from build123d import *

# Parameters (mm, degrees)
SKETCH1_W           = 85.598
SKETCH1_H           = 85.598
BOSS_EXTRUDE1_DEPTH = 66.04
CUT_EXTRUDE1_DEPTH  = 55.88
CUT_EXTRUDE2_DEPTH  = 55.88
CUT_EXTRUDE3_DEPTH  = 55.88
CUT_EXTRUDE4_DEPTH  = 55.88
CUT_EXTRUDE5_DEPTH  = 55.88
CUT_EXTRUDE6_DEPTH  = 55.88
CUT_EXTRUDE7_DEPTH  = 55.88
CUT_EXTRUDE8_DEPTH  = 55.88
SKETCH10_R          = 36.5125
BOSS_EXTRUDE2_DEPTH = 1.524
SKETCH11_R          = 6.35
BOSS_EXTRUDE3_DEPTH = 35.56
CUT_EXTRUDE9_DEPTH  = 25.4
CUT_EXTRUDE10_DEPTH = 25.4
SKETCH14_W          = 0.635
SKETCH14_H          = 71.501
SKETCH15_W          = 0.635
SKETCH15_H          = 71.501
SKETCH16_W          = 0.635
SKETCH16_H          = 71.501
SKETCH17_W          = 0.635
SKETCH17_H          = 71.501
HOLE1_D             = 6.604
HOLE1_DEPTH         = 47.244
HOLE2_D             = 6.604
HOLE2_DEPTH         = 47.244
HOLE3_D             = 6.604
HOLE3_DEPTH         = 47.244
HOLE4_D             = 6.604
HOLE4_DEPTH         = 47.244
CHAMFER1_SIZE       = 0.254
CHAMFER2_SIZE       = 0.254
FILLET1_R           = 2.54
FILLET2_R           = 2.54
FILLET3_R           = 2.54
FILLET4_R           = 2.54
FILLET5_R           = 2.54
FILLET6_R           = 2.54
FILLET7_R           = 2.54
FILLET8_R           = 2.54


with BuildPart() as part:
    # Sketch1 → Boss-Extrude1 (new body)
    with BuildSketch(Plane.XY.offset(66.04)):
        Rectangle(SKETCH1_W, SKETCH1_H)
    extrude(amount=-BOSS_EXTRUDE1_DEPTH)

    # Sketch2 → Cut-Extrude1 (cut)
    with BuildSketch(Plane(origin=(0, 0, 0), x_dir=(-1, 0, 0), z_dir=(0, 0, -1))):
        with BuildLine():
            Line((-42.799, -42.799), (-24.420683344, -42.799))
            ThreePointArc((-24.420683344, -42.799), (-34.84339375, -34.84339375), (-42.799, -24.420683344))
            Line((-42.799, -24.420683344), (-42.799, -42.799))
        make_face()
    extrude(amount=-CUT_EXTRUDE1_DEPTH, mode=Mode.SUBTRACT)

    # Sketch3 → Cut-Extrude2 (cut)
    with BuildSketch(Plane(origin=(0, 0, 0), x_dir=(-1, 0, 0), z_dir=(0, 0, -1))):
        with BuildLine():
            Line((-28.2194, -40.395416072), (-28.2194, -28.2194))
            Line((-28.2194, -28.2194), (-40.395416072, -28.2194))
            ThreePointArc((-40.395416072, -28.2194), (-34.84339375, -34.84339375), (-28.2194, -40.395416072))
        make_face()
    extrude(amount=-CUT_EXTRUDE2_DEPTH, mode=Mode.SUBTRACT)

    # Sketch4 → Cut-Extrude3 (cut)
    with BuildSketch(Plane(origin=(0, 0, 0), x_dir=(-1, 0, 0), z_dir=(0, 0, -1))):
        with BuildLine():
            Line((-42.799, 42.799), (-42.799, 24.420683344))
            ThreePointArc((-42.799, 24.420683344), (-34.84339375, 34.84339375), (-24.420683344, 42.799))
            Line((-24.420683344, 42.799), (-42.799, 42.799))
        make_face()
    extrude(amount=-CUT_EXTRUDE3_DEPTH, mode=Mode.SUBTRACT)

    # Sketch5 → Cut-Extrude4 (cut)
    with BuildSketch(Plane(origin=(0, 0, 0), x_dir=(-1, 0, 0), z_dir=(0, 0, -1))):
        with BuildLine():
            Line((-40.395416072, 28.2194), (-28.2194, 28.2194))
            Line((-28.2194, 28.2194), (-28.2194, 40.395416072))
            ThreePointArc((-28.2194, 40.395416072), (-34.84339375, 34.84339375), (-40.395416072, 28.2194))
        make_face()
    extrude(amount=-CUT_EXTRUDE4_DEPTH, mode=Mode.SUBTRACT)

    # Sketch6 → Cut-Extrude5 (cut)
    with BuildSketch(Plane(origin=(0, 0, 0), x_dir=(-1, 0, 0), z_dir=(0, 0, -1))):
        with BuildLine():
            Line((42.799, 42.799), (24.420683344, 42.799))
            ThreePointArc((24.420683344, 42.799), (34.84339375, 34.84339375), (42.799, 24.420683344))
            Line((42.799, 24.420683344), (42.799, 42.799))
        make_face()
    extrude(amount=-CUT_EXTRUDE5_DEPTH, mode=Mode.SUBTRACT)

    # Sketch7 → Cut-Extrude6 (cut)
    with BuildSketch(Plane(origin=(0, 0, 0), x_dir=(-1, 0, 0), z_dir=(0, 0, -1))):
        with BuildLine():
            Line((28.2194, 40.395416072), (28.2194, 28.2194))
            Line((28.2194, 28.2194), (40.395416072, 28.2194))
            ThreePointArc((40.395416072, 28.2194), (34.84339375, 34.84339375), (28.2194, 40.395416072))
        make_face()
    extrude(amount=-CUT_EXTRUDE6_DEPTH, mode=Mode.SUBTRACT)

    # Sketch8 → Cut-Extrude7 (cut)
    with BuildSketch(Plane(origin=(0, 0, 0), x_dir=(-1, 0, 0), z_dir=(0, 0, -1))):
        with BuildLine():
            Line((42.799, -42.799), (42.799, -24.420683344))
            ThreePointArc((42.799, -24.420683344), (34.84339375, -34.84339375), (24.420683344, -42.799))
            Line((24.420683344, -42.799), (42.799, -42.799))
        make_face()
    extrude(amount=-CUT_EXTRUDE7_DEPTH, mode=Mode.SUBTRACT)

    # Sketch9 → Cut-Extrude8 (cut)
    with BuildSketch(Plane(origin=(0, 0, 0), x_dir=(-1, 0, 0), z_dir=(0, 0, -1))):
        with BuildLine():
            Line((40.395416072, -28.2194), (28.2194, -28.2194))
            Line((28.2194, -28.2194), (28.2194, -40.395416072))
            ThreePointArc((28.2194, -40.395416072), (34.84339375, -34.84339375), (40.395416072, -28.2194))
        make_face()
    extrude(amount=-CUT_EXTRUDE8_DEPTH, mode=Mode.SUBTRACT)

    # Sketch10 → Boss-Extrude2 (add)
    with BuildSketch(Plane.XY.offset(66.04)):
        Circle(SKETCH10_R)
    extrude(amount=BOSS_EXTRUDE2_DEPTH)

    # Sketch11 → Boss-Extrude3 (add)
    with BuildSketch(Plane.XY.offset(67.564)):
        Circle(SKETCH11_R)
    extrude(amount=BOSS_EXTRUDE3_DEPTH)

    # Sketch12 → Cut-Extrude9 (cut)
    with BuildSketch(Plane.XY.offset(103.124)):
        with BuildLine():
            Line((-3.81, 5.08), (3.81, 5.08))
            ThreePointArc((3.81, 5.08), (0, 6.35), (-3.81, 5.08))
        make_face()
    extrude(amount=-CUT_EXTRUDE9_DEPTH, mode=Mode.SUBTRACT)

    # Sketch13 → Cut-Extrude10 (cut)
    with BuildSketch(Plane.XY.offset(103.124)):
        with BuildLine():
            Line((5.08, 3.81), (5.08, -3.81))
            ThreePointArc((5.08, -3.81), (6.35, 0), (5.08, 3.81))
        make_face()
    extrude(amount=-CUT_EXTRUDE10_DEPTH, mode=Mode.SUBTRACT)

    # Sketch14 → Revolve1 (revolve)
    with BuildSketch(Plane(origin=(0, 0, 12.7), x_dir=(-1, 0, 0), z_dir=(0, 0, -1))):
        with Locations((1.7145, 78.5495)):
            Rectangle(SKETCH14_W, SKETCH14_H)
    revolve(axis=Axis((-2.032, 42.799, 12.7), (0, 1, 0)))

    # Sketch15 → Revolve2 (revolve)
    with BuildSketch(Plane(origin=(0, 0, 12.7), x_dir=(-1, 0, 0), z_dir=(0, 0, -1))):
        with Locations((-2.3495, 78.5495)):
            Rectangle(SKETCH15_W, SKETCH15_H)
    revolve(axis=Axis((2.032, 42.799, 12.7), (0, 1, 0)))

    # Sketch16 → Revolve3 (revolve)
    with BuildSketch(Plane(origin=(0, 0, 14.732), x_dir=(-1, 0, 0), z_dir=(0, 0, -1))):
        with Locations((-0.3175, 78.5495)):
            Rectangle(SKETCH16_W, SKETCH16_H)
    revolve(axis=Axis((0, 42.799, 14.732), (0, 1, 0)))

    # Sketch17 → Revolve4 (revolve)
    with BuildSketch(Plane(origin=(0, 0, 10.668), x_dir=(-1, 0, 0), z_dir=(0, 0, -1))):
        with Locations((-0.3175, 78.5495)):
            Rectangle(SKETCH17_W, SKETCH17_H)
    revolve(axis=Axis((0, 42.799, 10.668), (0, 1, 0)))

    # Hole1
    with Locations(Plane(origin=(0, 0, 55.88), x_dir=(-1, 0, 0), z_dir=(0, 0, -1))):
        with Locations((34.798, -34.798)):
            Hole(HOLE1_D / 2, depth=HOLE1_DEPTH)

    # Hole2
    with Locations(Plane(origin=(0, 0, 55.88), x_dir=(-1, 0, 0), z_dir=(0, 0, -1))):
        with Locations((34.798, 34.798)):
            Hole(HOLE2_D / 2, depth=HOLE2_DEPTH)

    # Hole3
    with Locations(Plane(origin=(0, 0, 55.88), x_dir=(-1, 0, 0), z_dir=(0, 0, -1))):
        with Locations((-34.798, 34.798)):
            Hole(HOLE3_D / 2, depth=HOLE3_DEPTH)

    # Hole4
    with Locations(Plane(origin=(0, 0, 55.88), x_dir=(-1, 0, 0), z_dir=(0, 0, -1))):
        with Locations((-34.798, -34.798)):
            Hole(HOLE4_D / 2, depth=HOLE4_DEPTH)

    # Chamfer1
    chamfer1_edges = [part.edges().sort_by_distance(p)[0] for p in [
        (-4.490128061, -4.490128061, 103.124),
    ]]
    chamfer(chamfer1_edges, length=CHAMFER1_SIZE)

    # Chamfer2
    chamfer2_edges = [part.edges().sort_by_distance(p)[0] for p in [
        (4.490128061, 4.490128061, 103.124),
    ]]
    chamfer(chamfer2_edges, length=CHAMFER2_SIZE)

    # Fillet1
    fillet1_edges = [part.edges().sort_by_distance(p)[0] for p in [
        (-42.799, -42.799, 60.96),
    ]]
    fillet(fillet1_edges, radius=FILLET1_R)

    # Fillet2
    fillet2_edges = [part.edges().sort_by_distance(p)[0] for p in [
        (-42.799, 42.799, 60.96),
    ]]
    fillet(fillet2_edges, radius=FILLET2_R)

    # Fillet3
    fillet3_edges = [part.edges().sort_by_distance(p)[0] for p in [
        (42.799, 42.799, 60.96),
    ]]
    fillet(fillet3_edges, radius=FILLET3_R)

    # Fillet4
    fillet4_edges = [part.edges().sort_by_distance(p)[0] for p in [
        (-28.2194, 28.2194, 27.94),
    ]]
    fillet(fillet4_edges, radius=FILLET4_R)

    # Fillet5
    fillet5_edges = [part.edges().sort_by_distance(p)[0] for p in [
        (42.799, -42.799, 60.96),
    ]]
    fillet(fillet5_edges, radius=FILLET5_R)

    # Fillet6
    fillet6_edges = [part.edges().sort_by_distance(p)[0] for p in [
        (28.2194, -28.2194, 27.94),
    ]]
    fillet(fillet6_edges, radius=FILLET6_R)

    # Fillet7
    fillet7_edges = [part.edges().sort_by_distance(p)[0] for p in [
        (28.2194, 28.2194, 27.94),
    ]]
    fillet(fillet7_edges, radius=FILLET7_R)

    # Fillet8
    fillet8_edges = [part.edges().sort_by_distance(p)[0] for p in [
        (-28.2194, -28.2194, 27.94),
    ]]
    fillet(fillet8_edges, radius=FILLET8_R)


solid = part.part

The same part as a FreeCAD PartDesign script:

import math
import FreeCAD as App
import Part
import Sketcher
Q = App.Units.Quantity


def edges_at(feature, points):
    """Names of the edges that pass closest to the given points."""
    edges = feature.Shape.Edges
    near = lambda p: min(range(len(edges)), key=lambda i: edges[i].distToShape(Part.Vertex(*p))[0])
    return sorted({f"Edge{near(p) + 1}" for p in points})


def add_polygon(sketch, points):
    """Adds a closed chain of lines whose ends are joined by coincident constraints."""
    first, n = sketch.GeometryCount, len(points)
    for a, b in zip(points, points[1:] + points[:1]):
        sketch.addGeometry(Part.LineSegment(App.Vector(*a, 0), App.Vector(*b, 0)), False)
    for i in range(n):
        sketch.addConstraint(Sketcher.Constraint("Coincident", first + i, 2, first + (i + 1) % n, 1))

doc = App.newDocument("Part")
params = doc.addObject("Spreadsheet::Sheet", "Params")
for row, (alias, value) in enumerate([
    ("sketch1_width", "3.37 in"),
    ("pad1_length", "2.6 in"),
    ("sketch2_radius", "1.94 in"),
    ("pocket1_length", "2.2 in"),
    ("sketch3_radius", "1.94 in"),
    ("pocket2_length", "2.2 in"),
    ("sketch4_radius", "1.94 in"),
    ("pocket3_length", "2.2 in"),
    ("sketch5_radius", "1.94 in"),
    ("pocket4_length", "2.2 in"),
    ("sketch6_radius", "1.94 in"),
    ("pocket5_length", "2.2 in"),
    ("sketch7_radius", "1.94 in"),
    ("pocket6_length", "2.2 in"),
    ("sketch8_radius", "1.94 in"),
    ("pocket7_length", "2.2 in"),
    ("sketch9_radius", "1.94 in"),
    ("pocket8_length", "2.2 in"),
    ("sketch10_diameter", "2.875 in"),
    ("pad2_length", "0.06 in"),
    ("sketch11_diameter", "0.5 in"),
    ("pad3_length", "1.4 in"),
    ("sketch12_radius", "0.25 in"),
    ("sketch12_width", "0.3 in"),
    ("pocket9_length", "1 in"),
    ("sketch13_radius", "0.25 in"),
    ("sketch13_height", "0.3 in"),
    ("pocket10_length", "1 in"),
    ("sketch14_width", "0.025 in"),
    ("sketch14_height", "2.815 in"),
    ("revolution_angle", "360 deg"),
    ("sketch15_width", "0.025 in"),
    ("sketch15_height", "2.815 in"),
    ("revolution2_angle", "360 deg"),
    ("sketch16_width", "0.025 in"),
    ("sketch16_height", "2.815 in"),
    ("revolution3_angle", "360 deg"),
    ("sketch17_width", "0.025 in"),
    ("sketch17_height", "2.815 in"),
    ("revolution4_angle", "360 deg"),
    ("sketch18_diameter", "0.26 in"),
    ("hole_diameter", "0.26 in"),
    ("hole_depth", "1.86 in"),
    ("sketch19_diameter", "0.26 in"),
    ("hole2_diameter", "0.26 in"),
    ("hole2_depth", "1.86 in"),
    ("sketch20_diameter", "0.26 in"),
    ("hole3_diameter", "0.26 in"),
    ("hole3_depth", "1.86 in"),
    ("sketch21_diameter", "0.26 in"),
    ("hole4_diameter", "0.26 in"),
    ("hole4_depth", "1.86 in"),
    ("chamfer_size", "0.01 in"),
    ("chamfer2_size", "0.01 in"),
    ("fillet_radius", "0.1 in"),
    ("fillet2_radius", "0.1 in"),
    ("fillet3_radius", "0.1 in"),
    ("fillet4_radius", "0.1 in"),
    ("fillet5_radius", "0.1 in"),
    ("fillet6_radius", "0.1 in"),
    ("fillet7_radius", "0.1 in"),
    ("fillet8_radius", "0.1 in"),
], start=1):
    params.set(f"A{row}", alias)
    params.set(f"B{row}", "=" + value)
    params.setAlias(f"B{row}", alias)

body = doc.addObject("PartDesign::Body", "Body")

# Sketch on XY plane
sketch1 = body.newObject("Sketcher::SketchObject", "Sketch")
sketch1.AttachmentSupport = (doc.getObject("XY_Plane"), [""])
sketch1.MapMode = "FlatFace"
sketch1.AttachmentOffset = App.Placement(App.Vector(0, 0, 2.6 * 25.4), App.Rotation())
add_polygon(sketch1, [(-43, 43), (-43, -43), (43, -43), (43, 43)])  # lines 0-3
sketch1.addConstraint(Sketcher.Constraint("Vertical", 0))
sketch1.addConstraint(Sketcher.Constraint("Horizontal", 1))
sketch1.addConstraint(Sketcher.Constraint("Vertical", 2))
sketch1.addConstraint(Sketcher.Constraint("Horizontal", 3))
sketch1.addConstraint(Sketcher.Constraint("Symmetric", 0, 2, 2, 2, -1, 1))
sketch1.addConstraint(Sketcher.Constraint("Equal", 3, 0))
sketch1.addConstraint(Sketcher.Constraint("DistanceX", 1, 1, 1, 2, Q("3.37 in")))
sketch1.setExpression("Constraints[10]", "Params.sketch1_width")
pad1 = body.newObject("PartDesign::Pad", "Pad")
pad1.Profile = sketch1
pad1.setExpression("Length", "Params.pad1_length")
pad1.Reversed = True

# Sketch on XY plane
sketch2 = body.newObject("Sketcher::SketchObject", "Sketch001")
sketch2.AttachmentSupport = (doc.getObject("XY_Plane"), [""])
sketch2.MapMode = "FlatFace"
sketch2.addGeometry(Part.LineSegment(App.Vector(43, -43, 0), App.Vector(24, -43, 0)), False)
sketch2.addGeometry(Part.ArcOfCircle(Part.Circle(App.Vector(0, 0, 0), App.Vector(0, 0, 1), 49), math.radians(-60), math.radians(-30)), False)
sketch2.addGeometry(Part.LineSegment(App.Vector(43, -24, 0), App.Vector(43, -43, 0)), False)
sketch2.addConstraint(Sketcher.Constraint("Coincident", 0, 2, 1, 1))
sketch2.addConstraint(Sketcher.Constraint("Coincident", 1, 2, 2, 1))
sketch2.addConstraint(Sketcher.Constraint("Coincident", 2, 2, 0, 1))
sketch2.addConstraint(Sketcher.Constraint("Horizontal", 0))
sketch2.addConstraint(Sketcher.Constraint("Vertical", 2))
sketch2.addConstraint(Sketcher.Constraint("Coincident", 1, 3, -1, 1))
sketch2.addConstraint(Sketcher.Constraint("Equal", 0, 2))
sketch2.addConstraint(Sketcher.Constraint("Radius", 1, Q("1.94 in")))
sketch2.addConstraint(Sketcher.Constraint("DistanceY", 0, 2, -1, 1, Q("1.685 in")))
sketch2.setExpression("Constraints[7]", "Params.sketch2_radius")
pocket1 = body.newObject("PartDesign::Pocket", "Pocket")
pocket1.Profile = sketch2
pocket1.setExpression("Length", "Params.pocket1_length")
pocket1.Reversed = True

# Sketch on XY plane
sketch3 = body.newObject("Sketcher::SketchObject", "Sketch002")
sketch3.AttachmentSupport = (doc.getObject("XY_Plane"), [""])
sketch3.MapMode = "FlatFace"
sketch3.addGeometry(Part.LineSegment(App.Vector(28, -40, 0), App.Vector(28, -28, 0)), False)
sketch3.addGeometry(Part.LineSegment(App.Vector(28, -28, 0), App.Vector(40, -28, 0)), False)
sketch3.addGeometry(Part.ArcOfCircle(Part.Circle(App.Vector(0, 0, 0), App.Vector(0, 0, 1), 49), math.radians(-55), math.radians(-35)), False)
sketch3.addConstraint(Sketcher.Constraint("Coincident", 0, 2, 1, 1))
sketch3.addConstraint(Sketcher.Constraint("Coincident", 1, 2, 2, 2))
sketch3.addConstraint(Sketcher.Constraint("Coincident", 2, 1, 0, 1))
sketch3.addConstraint(Sketcher.Constraint("Vertical", 0))
sketch3.addConstraint(Sketcher.Constraint("Horizontal", 1))
sketch3.addConstraint(Sketcher.Constraint("Coincident", 2, 3, -1, 1))
sketch3.addConstraint(Sketcher.Constraint("Equal", 1, 0))
sketch3.addConstraint(Sketcher.Constraint("Radius", 2, Q("1.94 in")))
sketch3.addConstraint(Sketcher.Constraint("DistanceX", -1, 1, 0, 2, Q("1.111 in")))
sketch3.setExpression("Constraints[7]", "Params.sketch3_radius")
pocket2 = body.newObject("PartDesign::Pocket", "Pocket001")
pocket2.Profile = sketch3
pocket2.setExpression("Length", "Params.pocket2_length")
pocket2.Reversed = True

# Sketch on XY plane
sketch4 = body.newObject("Sketcher::SketchObject", "Sketch003")
sketch4.AttachmentSupport = (doc.getObject("XY_Plane"), [""])
sketch4.MapMode = "FlatFace"
sketch4.addGeometry(Part.LineSegment(App.Vector(43, 43, 0), App.Vector(43, 24, 0)), False)
sketch4.addGeometry(Part.ArcOfCircle(Part.Circle(App.Vector(0, 0, 0), App.Vector(0, 0, 1), 49), math.radians(30), math.radians(60)), False)
sketch4.addGeometry(Part.LineSegment(App.Vector(24, 43, 0), App.Vector(43, 43, 0)), False)
sketch4.addConstraint(Sketcher.Constraint("Coincident", 0, 2, 1, 1))
sketch4.addConstraint(Sketcher.Constraint("Coincident", 1, 2, 2, 1))
sketch4.addConstraint(Sketcher.Constraint("Coincident", 2, 2, 0, 1))
sketch4.addConstraint(Sketcher.Constraint("Vertical", 0))
sketch4.addConstraint(Sketcher.Constraint("Horizontal", 2))
sketch4.addConstraint(Sketcher.Constraint("Coincident", 1, 3, -1, 1))
sketch4.addConstraint(Sketcher.Constraint("Equal", 2, 0))
sketch4.addConstraint(Sketcher.Constraint("Radius", 1, Q("1.94 in")))
sketch4.addConstraint(Sketcher.Constraint("DistanceX", -1, 1, 0, 2, Q("1.685 in")))
sketch4.setExpression("Constraints[7]", "Params.sketch4_radius")
pocket3 = body.newObject("PartDesign::Pocket", "Pocket002")
pocket3.Profile = sketch4
pocket3.setExpression("Length", "Params.pocket3_length")
pocket3.Reversed = True

# Sketch on XY plane
sketch5 = body.newObject("Sketcher::SketchObject", "Sketch004")
sketch5.AttachmentSupport = (doc.getObject("XY_Plane"), [""])
sketch5.MapMode = "FlatFace"
sketch5.addGeometry(Part.LineSegment(App.Vector(40, 28, 0), App.Vector(28, 28, 0)), False)
sketch5.addGeometry(Part.LineSegment(App.Vector(28, 28, 0), App.Vector(28, 40, 0)), False)
sketch5.addGeometry(Part.ArcOfCircle(Part.Circle(App.Vector(0, 0, 0), App.Vector(0, 0, 1), 49), math.radians(35), math.radians(55)), False)
sketch5.addConstraint(Sketcher.Constraint("Coincident", 0, 2, 1, 1))
sketch5.addConstraint(Sketcher.Constraint("Coincident", 1, 2, 2, 2))
sketch5.addConstraint(Sketcher.Constraint("Coincident", 2, 1, 0, 1))
sketch5.addConstraint(Sketcher.Constraint("Horizontal", 0))
sketch5.addConstraint(Sketcher.Constraint("Vertical", 1))
sketch5.addConstraint(Sketcher.Constraint("Coincident", 2, 3, -1, 1))
sketch5.addConstraint(Sketcher.Constraint("Equal", 0, 1))
sketch5.addConstraint(Sketcher.Constraint("Radius", 2, Q("1.94 in")))
sketch5.addConstraint(Sketcher.Constraint("DistanceX", -1, 1, 0, 2, Q("1.111 in")))
sketch5.setExpression("Constraints[7]", "Params.sketch5_radius")
pocket4 = body.newObject("PartDesign::Pocket", "Pocket003")
pocket4.Profile = sketch5
pocket4.setExpression("Length", "Params.pocket4_length")
pocket4.Reversed = True

# Sketch on XY plane
sketch6 = body.newObject("Sketcher::SketchObject", "Sketch005")
sketch6.AttachmentSupport = (doc.getObject("XY_Plane"), [""])
sketch6.MapMode = "FlatFace"
sketch6.addGeometry(Part.LineSegment(App.Vector(-43, 43, 0), App.Vector(-24, 43, 0)), False)
sketch6.addGeometry(Part.ArcOfCircle(Part.Circle(App.Vector(0, 0, 0), App.Vector(0, 0, 1), 49), math.radians(120), math.radians(150)), False)
sketch6.addGeometry(Part.LineSegment(App.Vector(-43, 24, 0), App.Vector(-43, 43, 0)), False)
sketch6.addConstraint(Sketcher.Constraint("Coincident", 0, 2, 1, 1))
sketch6.addConstraint(Sketcher.Constraint("Coincident", 1, 2, 2, 1))
sketch6.addConstraint(Sketcher.Constraint("Coincident", 2, 2, 0, 1))
sketch6.addConstraint(Sketcher.Constraint("Horizontal", 0))
sketch6.addConstraint(Sketcher.Constraint("Vertical", 2))
sketch6.addConstraint(Sketcher.Constraint("Coincident", 1, 3, -1, 1))
sketch6.addConstraint(Sketcher.Constraint("Equal", 0, 2))
sketch6.addConstraint(Sketcher.Constraint("Radius", 1, Q("1.94 in")))
sketch6.addConstraint(Sketcher.Constraint("DistanceY", -1, 1, 0, 2, Q("1.685 in")))
sketch6.setExpression("Constraints[7]", "Params.sketch6_radius")
pocket5 = body.newObject("PartDesign::Pocket", "Pocket004")
pocket5.Profile = sketch6
pocket5.setExpression("Length", "Params.pocket5_length")
pocket5.Reversed = True

# Sketch on XY plane
sketch7 = body.newObject("Sketcher::SketchObject", "Sketch006")
sketch7.AttachmentSupport = (doc.getObject("XY_Plane"), [""])
sketch7.MapMode = "FlatFace"
sketch7.addGeometry(Part.LineSegment(App.Vector(-28, 40, 0), App.Vector(-28, 28, 0)), False)
sketch7.addGeometry(Part.LineSegment(App.Vector(-28, 28, 0), App.Vector(-40, 28, 0)), False)
sketch7.addGeometry(Part.ArcOfCircle(Part.Circle(App.Vector(0, 0, 0), App.Vector(0, 0, 1), 49), math.radians(125), math.radians(145)), False)
sketch7.addConstraint(Sketcher.Constraint("Coincident", 0, 2, 1, 1))
sketch7.addConstraint(Sketcher.Constraint("Coincident", 1, 2, 2, 2))
sketch7.addConstraint(Sketcher.Constraint("Coincident", 2, 1, 0, 1))
sketch7.addConstraint(Sketcher.Constraint("Vertical", 0))
sketch7.addConstraint(Sketcher.Constraint("Horizontal", 1))
sketch7.addConstraint(Sketcher.Constraint("Coincident", 2, 3, -1, 1))
sketch7.addConstraint(Sketcher.Constraint("Equal", 1, 0))
sketch7.addConstraint(Sketcher.Constraint("Radius", 2, Q("1.94 in")))
sketch7.addConstraint(Sketcher.Constraint("DistanceX", 0, 2, -1, 1, Q("1.111 in")))
sketch7.setExpression("Constraints[7]", "Params.sketch7_radius")
pocket6 = body.newObject("PartDesign::Pocket", "Pocket005")
pocket6.Profile = sketch7
pocket6.setExpression("Length", "Params.pocket6_length")
pocket6.Reversed = True

# Sketch on XY plane
sketch8 = body.newObject("Sketcher::SketchObject", "Sketch007")
sketch8.AttachmentSupport = (doc.getObject("XY_Plane"), [""])
sketch8.MapMode = "FlatFace"
sketch8.addGeometry(Part.LineSegment(App.Vector(-43, -43, 0), App.Vector(-43, -24, 0)), False)
sketch8.addGeometry(Part.ArcOfCircle(Part.Circle(App.Vector(0, 0, 0), App.Vector(0, 0, 1), 49), math.radians(-150), math.radians(-120)), False)
sketch8.addGeometry(Part.LineSegment(App.Vector(-24, -43, 0), App.Vector(-43, -43, 0)), False)
sketch8.addConstraint(Sketcher.Constraint("Coincident", 0, 2, 1, 1))
sketch8.addConstraint(Sketcher.Constraint("Coincident", 1, 2, 2, 1))
sketch8.addConstraint(Sketcher.Constraint("Coincident", 2, 2, 0, 1))
sketch8.addConstraint(Sketcher.Constraint("Vertical", 0))
sketch8.addConstraint(Sketcher.Constraint("Horizontal", 2))
sketch8.addConstraint(Sketcher.Constraint("Coincident", 1, 3, -1, 1))
sketch8.addConstraint(Sketcher.Constraint("Equal", 2, 0))
sketch8.addConstraint(Sketcher.Constraint("Radius", 1, Q("1.94 in")))
sketch8.addConstraint(Sketcher.Constraint("DistanceX", 0, 2, -1, 1, Q("1.685 in")))
sketch8.setExpression("Constraints[7]", "Params.sketch8_radius")
pocket7 = body.newObject("PartDesign::Pocket", "Pocket006")
pocket7.Profile = sketch8
pocket7.setExpression("Length", "Params.pocket7_length")
pocket7.Reversed = True

# Sketch on XY plane
sketch9 = body.newObject("Sketcher::SketchObject", "Sketch008")
sketch9.AttachmentSupport = (doc.getObject("XY_Plane"), [""])
sketch9.MapMode = "FlatFace"
sketch9.addGeometry(Part.LineSegment(App.Vector(-40, -28, 0), App.Vector(-28, -28, 0)), False)
sketch9.addGeometry(Part.LineSegment(App.Vector(-28, -28, 0), App.Vector(-28, -40, 0)), False)
sketch9.addGeometry(Part.ArcOfCircle(Part.Circle(App.Vector(0, 0, 0), App.Vector(0, 0, 1), 49), math.radians(-145), math.radians(-125)), False)
sketch9.addConstraint(Sketcher.Constraint("Coincident", 0, 2, 1, 1))
sketch9.addConstraint(Sketcher.Constraint("Coincident", 1, 2, 2, 2))
sketch9.addConstraint(Sketcher.Constraint("Coincident", 2, 1, 0, 1))
sketch9.addConstraint(Sketcher.Constraint("Horizontal", 0))
sketch9.addConstraint(Sketcher.Constraint("Vertical", 1))
sketch9.addConstraint(Sketcher.Constraint("Coincident", 2, 3, -1, 1))
sketch9.addConstraint(Sketcher.Constraint("Equal", 0, 1))
sketch9.addConstraint(Sketcher.Constraint("Radius", 2, Q("1.94 in")))
sketch9.addConstraint(Sketcher.Constraint("DistanceX", 0, 2, -1, 1, Q("1.111 in")))
sketch9.setExpression("Constraints[7]", "Params.sketch9_radius")
pocket8 = body.newObject("PartDesign::Pocket", "Pocket007")
pocket8.Profile = sketch9
pocket8.setExpression("Length", "Params.pocket8_length")
pocket8.Reversed = True

# Sketch on XY plane
sketch10 = body.newObject("Sketcher::SketchObject", "Sketch009")
sketch10.AttachmentSupport = (doc.getObject("XY_Plane"), [""])
sketch10.MapMode = "FlatFace"
sketch10.AttachmentOffset = App.Placement(App.Vector(0, 0, 2.6 * 25.4), App.Rotation())
sketch10.addGeometry(Part.Circle(App.Vector(0, 0, 0), App.Vector(0, 0, 1), 37), False)
sketch10.addConstraint(Sketcher.Constraint("Coincident", 0, 3, -1, 1))
sketch10.addConstraint(Sketcher.Constraint("Diameter", 0, Q("2.875 in")))
sketch10.setExpression("Constraints[1]", "Params.sketch10_diameter")
pad2 = body.newObject("PartDesign::Pad", "Pad001")
pad2.Profile = sketch10
pad2.setExpression("Length", "Params.pad2_length")

# Sketch on XY plane
sketch11 = body.newObject("Sketcher::SketchObject", "Sketch010")
sketch11.AttachmentSupport = (doc.getObject("XY_Plane"), [""])
sketch11.MapMode = "FlatFace"
sketch11.AttachmentOffset = App.Placement(App.Vector(0, 0, 2.66 * 25.4), App.Rotation())
sketch11.addGeometry(Part.Circle(App.Vector(0, 0, 0), App.Vector(0, 0, 1), 6), False)
sketch11.addConstraint(Sketcher.Constraint("Coincident", 0, 3, -1, 1))
sketch11.addConstraint(Sketcher.Constraint("Diameter", 0, Q("0.5 in")))
sketch11.setExpression("Constraints[1]", "Params.sketch11_diameter")
pad3 = body.newObject("PartDesign::Pad", "Pad002")
pad3.Profile = sketch11
pad3.setExpression("Length", "Params.pad3_length")

# Sketch on XY plane
sketch12 = body.newObject("Sketcher::SketchObject", "Sketch011")
sketch12.AttachmentSupport = (doc.getObject("XY_Plane"), [""])
sketch12.MapMode = "FlatFace"
sketch12.AttachmentOffset = App.Placement(App.Vector(0, 0, 4.06 * 25.4), App.Rotation())
sketch12.addGeometry(Part.LineSegment(App.Vector(-4, 5, 0), App.Vector(4, 5, 0)), False)
sketch12.addGeometry(Part.ArcOfCircle(Part.Circle(App.Vector(0, 0, 0), App.Vector(0, 0, 1), 6), math.radians(53), math.radians(127)), False)
sketch12.addConstraint(Sketcher.Constraint("Coincident", 0, 1, 1, 2))
sketch12.addConstraint(Sketcher.Constraint("Coincident", 1, 1, 0, 2))
sketch12.addConstraint(Sketcher.Constraint("Horizontal", 0))
sketch12.addConstraint(Sketcher.Constraint("Coincident", 1, 3, -1, 1))
sketch12.addConstraint(Sketcher.Constraint("Radius", 1, Q("0.25 in")))
sketch12.addConstraint(Sketcher.Constraint("DistanceX", 0, 1, 0, 2, Q("0.3 in")))
sketch12.setExpression("Constraints[4]", "Params.sketch12_radius")
sketch12.setExpression("Constraints[5]", "Params.sketch12_width")
pocket9 = body.newObject("PartDesign::Pocket", "Pocket008")
pocket9.Profile = sketch12
pocket9.setExpression("Length", "Params.pocket9_length")

# Sketch on XY plane
sketch13 = body.newObject("Sketcher::SketchObject", "Sketch012")
sketch13.AttachmentSupport = (doc.getObject("XY_Plane"), [""])
sketch13.MapMode = "FlatFace"
sketch13.AttachmentOffset = App.Placement(App.Vector(0, 0, 4.06 * 25.4), App.Rotation())
sketch13.addGeometry(Part.LineSegment(App.Vector(5, 4, 0), App.Vector(5, -4, 0)), False)
sketch13.addGeometry(Part.ArcOfCircle(Part.Circle(App.Vector(0, 0, 0), App.Vector(0, 0, 1), 6), math.radians(-37), math.radians(37)), False)
sketch13.addConstraint(Sketcher.Constraint("Coincident", 0, 1, 1, 2))
sketch13.addConstraint(Sketcher.Constraint("Coincident", 1, 1, 0, 2))
sketch13.addConstraint(Sketcher.Constraint("Vertical", 0))
sketch13.addConstraint(Sketcher.Constraint("Coincident", 1, 3, -1, 1))
sketch13.addConstraint(Sketcher.Constraint("Radius", 1, Q("0.25 in")))
sketch13.addConstraint(Sketcher.Constraint("DistanceY", 0, 2, 0, 1, Q("0.3 in")))
sketch13.setExpression("Constraints[4]", "Params.sketch13_radius")
sketch13.setExpression("Constraints[5]", "Params.sketch13_height")
pocket10 = body.newObject("PartDesign::Pocket", "Pocket009")
pocket10.Profile = sketch13
pocket10.setExpression("Length", "Params.pocket10_length")

# Sketch on XY plane
sketch14 = body.newObject("Sketcher::SketchObject", "Sketch013")
sketch14.AttachmentSupport = (doc.getObject("XY_Plane"), [""])
sketch14.MapMode = "FlatFace"
sketch14.AttachmentOffset = App.Placement(App.Vector(0, 0, 0.5 * 25.4), App.Rotation())
add_polygon(sketch14, [(-1.4, 114.3), (-1.4, 42.8), (-2, 42.8), (-2, 114.3)])  # lines 0-3
sketch14.addGeometry(Part.LineSegment(App.Vector(-2, 42.8, 0), App.Vector(-2, 114.3, 0)), True)  # axis
sketch14.addConstraint(Sketcher.Constraint("Vertical", 0))
sketch14.addConstraint(Sketcher.Constraint("Horizontal", 1))
sketch14.addConstraint(Sketcher.Constraint("Vertical", 2))
sketch14.addConstraint(Sketcher.Constraint("Horizontal", 3))
sketch14.addConstraint(Sketcher.Constraint("Vertical", 4))
sketch14.addConstraint(Sketcher.Constraint("Coincident", 4, 1, 1, 2))
sketch14.addConstraint(Sketcher.Constraint("Horizontal", 3, 2, 4, 2))
sketch14.addConstraint(Sketcher.Constraint("DistanceY", -1, 1, 2, 2, Q("4.5 in")))
sketch14.addConstraint(Sketcher.Constraint("DistanceX", 1, 2, 1, 1, Q("0.025 in")))
sketch14.addConstraint(Sketcher.Constraint("DistanceY", 0, 2, 0, 1, Q("2.815 in")))
sketch14.addConstraint(Sketcher.Constraint("DistanceX", 1, 2, -1, 1, Q("0.08 in")))
sketch14.setExpression("Constraints[12]", "Params.sketch14_width")
sketch14.setExpression("Constraints[13]", "Params.sketch14_height")
revolution = body.newObject("PartDesign::Revolution", "Revolution")
revolution.Profile = sketch14
revolution.ReferenceAxis = (sketch14, ["Axis0"])
revolution.setExpression("Angle", "Params.revolution_angle")

# Sketch on XY plane
sketch15 = body.newObject("Sketcher::SketchObject", "Sketch014")
sketch15.AttachmentSupport = (doc.getObject("XY_Plane"), [""])
sketch15.MapMode = "FlatFace"
sketch15.AttachmentOffset = App.Placement(App.Vector(0, 0, 0.5 * 25.4), App.Rotation())
add_polygon(sketch15, [(2.7, 114.3), (2.7, 42.8), (2, 42.8), (2, 114.3)])  # lines 0-3
sketch15.addGeometry(Part.LineSegment(App.Vector(2, 42.8, 0), App.Vector(2, 114.3, 0)), True)  # axis
sketch15.addConstraint(Sketcher.Constraint("Vertical", 0))
sketch15.addConstraint(Sketcher.Constraint("Horizontal", 1))
sketch15.addConstraint(Sketcher.Constraint("Vertical", 2))
sketch15.addConstraint(Sketcher.Constraint("Horizontal", 3))
sketch15.addConstraint(Sketcher.Constraint("Vertical", 4))
sketch15.addConstraint(Sketcher.Constraint("Coincident", 4, 1, 1, 2))
sketch15.addConstraint(Sketcher.Constraint("Horizontal", 3, 2, 4, 2))
sketch15.addConstraint(Sketcher.Constraint("DistanceY", -1, 1, 2, 2, Q("4.5 in")))
sketch15.addConstraint(Sketcher.Constraint("DistanceX", 1, 2, 1, 1, Q("0.025 in")))
sketch15.addConstraint(Sketcher.Constraint("DistanceY", 0, 2, 0, 1, Q("2.815 in")))
sketch15.addConstraint(Sketcher.Constraint("DistanceX", -1, 1, 1, 2, Q("0.08 in")))
sketch15.setExpression("Constraints[12]", "Params.sketch15_width")
sketch15.setExpression("Constraints[13]", "Params.sketch15_height")
revolution2 = body.newObject("PartDesign::Revolution", "Revolution001")
revolution2.Profile = sketch15
revolution2.ReferenceAxis = (sketch15, ["Axis0"])
revolution2.setExpression("Angle", "Params.revolution2_angle")

# Sketch on XY plane
sketch16 = body.newObject("Sketcher::SketchObject", "Sketch015")
sketch16.AttachmentSupport = (doc.getObject("XY_Plane"), [""])
sketch16.MapMode = "FlatFace"
sketch16.AttachmentOffset = App.Placement(App.Vector(0, 0, 0.58 * 25.4), App.Rotation())
add_polygon(sketch16, [(0.6, 114.3), (0.6, 42.8), (0, 42.8), (0, 114.3)])  # lines 0-3
sketch16.addConstraint(Sketcher.Constraint("Vertical", 0))
sketch16.addConstraint(Sketcher.Constraint("Horizontal", 1))
sketch16.addConstraint(Sketcher.Constraint("Vertical", 2))
sketch16.addConstraint(Sketcher.Constraint("Horizontal", 3))
sketch16.addConstraint(Sketcher.Constraint("PointOnObject", 1, 2, -2))
sketch16.addConstraint(Sketcher.Constraint("DistanceY", -1, 1, 2, 2, Q("4.5 in")))
sketch16.addConstraint(Sketcher.Constraint("DistanceX", 1, 2, 1, 1, Q("0.025 in")))
sketch16.addConstraint(Sketcher.Constraint("DistanceY", 0, 2, 0, 1, Q("2.815 in")))
sketch16.setExpression("Constraints[10]", "Params.sketch16_width")
sketch16.setExpression("Constraints[11]", "Params.sketch16_height")
revolution3 = body.newObject("PartDesign::Revolution", "Revolution002")
revolution3.Profile = sketch16
revolution3.ReferenceAxis = (sketch16, ["V_Axis"])
revolution3.setExpression("Angle", "Params.revolution3_angle")

# Sketch on XY plane
sketch17 = body.newObject("Sketcher::SketchObject", "Sketch016")
sketch17.AttachmentSupport = (doc.getObject("XY_Plane"), [""])
sketch17.MapMode = "FlatFace"
sketch17.AttachmentOffset = App.Placement(App.Vector(0, 0, 0.42 * 25.4), App.Rotation())
add_polygon(sketch17, [(0.6, 114.3), (0.6, 42.8), (0, 42.8), (0, 114.3)])  # lines 0-3
sketch17.addConstraint(Sketcher.Constraint("Vertical", 0))
sketch17.addConstraint(Sketcher.Constraint("Horizontal", 1))
sketch17.addConstraint(Sketcher.Constraint("Vertical", 2))
sketch17.addConstraint(Sketcher.Constraint("Horizontal", 3))
sketch17.addConstraint(Sketcher.Constraint("PointOnObject", 1, 2, -2))
sketch17.addConstraint(Sketcher.Constraint("DistanceY", -1, 1, 2, 2, Q("4.5 in")))
sketch17.addConstraint(Sketcher.Constraint("DistanceX", 1, 2, 1, 1, Q("0.025 in")))
sketch17.addConstraint(Sketcher.Constraint("DistanceY", 0, 2, 0, 1, Q("2.815 in")))
sketch17.setExpression("Constraints[10]", "Params.sketch17_width")
sketch17.setExpression("Constraints[11]", "Params.sketch17_height")
revolution4 = body.newObject("PartDesign::Revolution", "Revolution003")
revolution4.Profile = sketch17
revolution4.ReferenceAxis = (sketch17, ["V_Axis"])
revolution4.setExpression("Angle", "Params.revolution4_angle")

# Sketch on XY plane
sketch18 = body.newObject("Sketcher::SketchObject", "Sketch017")
sketch18.AttachmentSupport = (doc.getObject("XY_Plane"), [""])
sketch18.MapMode = "FlatFace"
sketch18.AttachmentOffset = App.Placement(App.Vector(0, 0, 2.2 * 25.4), App.Rotation())
sketch18.addGeometry(Part.Circle(App.Vector(-34.8, -34.8, 0), App.Vector(0, 0, 1), 3.3), False)
sketch18.addConstraint(Sketcher.Constraint("Diameter", 0, Q("0.26 in")))
sketch18.addConstraint(Sketcher.Constraint("DistanceX", 0, 3, -1, 1, Q("1.37 in")))
sketch18.addConstraint(Sketcher.Constraint("DistanceY", 0, 3, -1, 1, Q("1.37 in")))
sketch18.setExpression("Constraints[0]", "Params.sketch18_diameter")
doc.recompute()
hole = body.newObject("PartDesign::Hole", "Hole")
hole.Profile = sketch18
hole.ThreadType = "None"
hole.setExpression("Diameter", "Params.hole_diameter")
hole.DepthType = "Dimension"
hole.setExpression("Depth", "Params.hole_depth")
hole.DrillPoint = "Flat"
hole.Reversed = True

# Sketch on XY plane
sketch19 = body.newObject("Sketcher::SketchObject", "Sketch018")
sketch19.AttachmentSupport = (doc.getObject("XY_Plane"), [""])
sketch19.MapMode = "FlatFace"
sketch19.AttachmentOffset = App.Placement(App.Vector(0, 0, 2.2 * 25.4), App.Rotation())
sketch19.addGeometry(Part.Circle(App.Vector(-34.8, 34.8, 0), App.Vector(0, 0, 1), 3.3), False)
sketch19.addConstraint(Sketcher.Constraint("Diameter", 0, Q("0.26 in")))
sketch19.addConstraint(Sketcher.Constraint("DistanceX", 0, 3, -1, 1, Q("1.37 in")))
sketch19.addConstraint(Sketcher.Constraint("DistanceY", -1, 1, 0, 3, Q("1.37 in")))
sketch19.setExpression("Constraints[0]", "Params.sketch19_diameter")
doc.recompute()
hole2 = body.newObject("PartDesign::Hole", "Hole001")
hole2.Profile = sketch19
hole2.ThreadType = "None"
hole2.setExpression("Diameter", "Params.hole2_diameter")
hole2.DepthType = "Dimension"
hole2.setExpression("Depth", "Params.hole2_depth")
hole2.DrillPoint = "Flat"
hole2.Reversed = True

# Sketch on XY plane
sketch20 = body.newObject("Sketcher::SketchObject", "Sketch019")
sketch20.AttachmentSupport = (doc.getObject("XY_Plane"), [""])
sketch20.MapMode = "FlatFace"
sketch20.AttachmentOffset = App.Placement(App.Vector(0, 0, 2.2 * 25.4), App.Rotation())
sketch20.addGeometry(Part.Circle(App.Vector(34.8, 34.8, 0), App.Vector(0, 0, 1), 3.3), False)
sketch20.addConstraint(Sketcher.Constraint("Diameter", 0, Q("0.26 in")))
sketch20.addConstraint(Sketcher.Constraint("DistanceX", -1, 1, 0, 3, Q("1.37 in")))
sketch20.addConstraint(Sketcher.Constraint("DistanceY", -1, 1, 0, 3, Q("1.37 in")))
sketch20.setExpression("Constraints[0]", "Params.sketch20_diameter")
doc.recompute()
hole3 = body.newObject("PartDesign::Hole", "Hole002")
hole3.Profile = sketch20
hole3.ThreadType = "None"
hole3.setExpression("Diameter", "Params.hole3_diameter")
hole3.DepthType = "Dimension"
hole3.setExpression("Depth", "Params.hole3_depth")
hole3.DrillPoint = "Flat"
hole3.Reversed = True

# Sketch on XY plane
sketch21 = body.newObject("Sketcher::SketchObject", "Sketch020")
sketch21.AttachmentSupport = (doc.getObject("XY_Plane"), [""])
sketch21.MapMode = "FlatFace"
sketch21.AttachmentOffset = App.Placement(App.Vector(0, 0, 2.2 * 25.4), App.Rotation())
sketch21.addGeometry(Part.Circle(App.Vector(34.8, -34.8, 0), App.Vector(0, 0, 1), 3.3), False)
sketch21.addConstraint(Sketcher.Constraint("Diameter", 0, Q("0.26 in")))
sketch21.addConstraint(Sketcher.Constraint("DistanceX", -1, 1, 0, 3, Q("1.37 in")))
sketch21.addConstraint(Sketcher.Constraint("DistanceY", 0, 3, -1, 1, Q("1.37 in")))
sketch21.setExpression("Constraints[0]", "Params.sketch21_diameter")
doc.recompute()
hole4 = body.newObject("PartDesign::Hole", "Hole003")
hole4.Profile = sketch21
hole4.ThreadType = "None"
hole4.setExpression("Diameter", "Params.hole4_diameter")
hole4.DepthType = "Dimension"
hole4.setExpression("Depth", "Params.hole4_depth")
hole4.DrillPoint = "Flat"
hole4.Reversed = True
doc.recompute()

chamfer = body.newObject("PartDesign::Chamfer", "Chamfer")
chamfer.Base = (hole4, edges_at(hole4, [(-4.49, -4.49, 103.124)]))
chamfer.setExpression("Size", "Params.chamfer_size")
doc.recompute()

chamfer2 = body.newObject("PartDesign::Chamfer", "Chamfer001")
chamfer2.Base = (chamfer, edges_at(chamfer, [(4.49, 4.49, 103.124)]))
chamfer2.setExpression("Size", "Params.chamfer2_size")
doc.recompute()

fillet = body.newObject("PartDesign::Fillet", "Fillet")
fillet.Base = (chamfer2, edges_at(chamfer2, [(-42.799, -42.799, 60.96)]))
fillet.setExpression("Radius", "Params.fillet_radius")
doc.recompute()

fillet2 = body.newObject("PartDesign::Fillet", "Fillet001")
fillet2.Base = (fillet, edges_at(fillet, [(-42.799, 42.799, 60.96)]))
fillet2.setExpression("Radius", "Params.fillet2_radius")
doc.recompute()

fillet3 = body.newObject("PartDesign::Fillet", "Fillet002")
fillet3.Base = (fillet2, edges_at(fillet2, [(42.799, 42.799, 60.96)]))
fillet3.setExpression("Radius", "Params.fillet3_radius")
doc.recompute()

fillet4 = body.newObject("PartDesign::Fillet", "Fillet003")
fillet4.Base = (fillet3, edges_at(fillet3, [(-28.219, 28.219, 27.94)]))
fillet4.setExpression("Radius", "Params.fillet4_radius")
doc.recompute()

fillet5 = body.newObject("PartDesign::Fillet", "Fillet004")
fillet5.Base = (fillet4, edges_at(fillet4, [(42.799, -42.799, 60.96)]))
fillet5.setExpression("Radius", "Params.fillet5_radius")
doc.recompute()

fillet6 = body.newObject("PartDesign::Fillet", "Fillet005")
fillet6.Base = (fillet5, edges_at(fillet5, [(28.219, -28.219, 27.94)]))
fillet6.setExpression("Radius", "Params.fillet6_radius")
doc.recompute()

fillet7 = body.newObject("PartDesign::Fillet", "Fillet006")
fillet7.Base = (fillet6, edges_at(fillet6, [(28.219, 28.219, 27.94)]))
fillet7.setExpression("Radius", "Params.fillet7_radius")
doc.recompute()

fillet8 = body.newObject("PartDesign::Fillet", "Fillet007")
fillet8.Base = (fillet7, edges_at(fillet7, [(-28.219, -28.219, 27.94)]))
fillet8.setExpression("Radius", "Params.fillet8_radius")

doc.recompute()
